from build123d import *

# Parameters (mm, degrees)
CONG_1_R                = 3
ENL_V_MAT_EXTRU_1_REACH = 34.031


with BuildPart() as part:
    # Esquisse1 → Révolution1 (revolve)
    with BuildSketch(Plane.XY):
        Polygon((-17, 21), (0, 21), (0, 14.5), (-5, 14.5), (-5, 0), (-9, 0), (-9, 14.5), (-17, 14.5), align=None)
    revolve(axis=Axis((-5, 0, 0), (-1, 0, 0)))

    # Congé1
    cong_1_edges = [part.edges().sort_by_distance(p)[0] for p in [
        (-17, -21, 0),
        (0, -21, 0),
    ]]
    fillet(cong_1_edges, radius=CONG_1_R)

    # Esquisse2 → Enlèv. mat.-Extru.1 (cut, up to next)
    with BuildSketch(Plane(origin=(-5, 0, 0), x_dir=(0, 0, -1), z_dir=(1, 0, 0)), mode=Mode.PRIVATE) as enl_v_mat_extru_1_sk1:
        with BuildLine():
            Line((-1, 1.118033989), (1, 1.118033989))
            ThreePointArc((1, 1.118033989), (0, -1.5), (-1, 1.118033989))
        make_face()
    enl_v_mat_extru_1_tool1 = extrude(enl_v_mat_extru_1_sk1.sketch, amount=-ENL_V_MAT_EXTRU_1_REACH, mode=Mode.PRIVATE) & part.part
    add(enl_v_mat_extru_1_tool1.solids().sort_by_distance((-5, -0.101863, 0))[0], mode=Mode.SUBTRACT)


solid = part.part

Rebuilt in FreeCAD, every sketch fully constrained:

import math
import FreeCAD as App
import Part
import Sketcher


def edges_at(feature, points):
    """Names of the edges that pass closest to the given points."""
    edges = feature.Shape.Edges
    near = lambda p: min(range(len(edges)), key=lambda i: edges[i].distToShape(Part.Vertex(*p))[0])
    return sorted({f"Edge{near(p) + 1}" for p in points})

doc = App.newDocument("Part")
body = doc.addObject("PartDesign::Body", "Body")

sketch1 = body.newObject("Sketcher::SketchObject", "Sketch")
sketch1.AttachmentSupport = (doc.getObject("XY_Plane"), [""])
sketch1.MapMode = "FlatFace"
sketch1.addGeometry([
    Part.LineSegment(App.Vector(0, 21, 0), App.Vector(-17, 21, 0)),
    Part.LineSegment(App.Vector(-17, 21, 0), App.Vector(-17, 14.5, 0)),
    Part.LineSegment(App.Vector(-17, 14.5, 0), App.Vector(-9, 14.5, 0)),
    Part.LineSegment(App.Vector(-9, 14.5, 0), App.Vector(-9, 0, 0)),
    Part.LineSegment(App.Vector(-9, 0, 0), App.Vector(-5, 0, 0)),
    Part.LineSegment(App.Vector(-5, 0, 0), App.Vector(-5, 14.5, 0)),
    Part.LineSegment(App.Vector(-5, 14.5, 0), App.Vector(0, 14.5, 0)),
    Part.LineSegment(App.Vector(0, 14.5, 0), App.Vector(0, 21, 0)),
], False)
sketch1.addConstraint([
    Sketcher.Constraint("Coincident", 0, 2, 1, 1),
    Sketcher.Constraint("Coincident", 1, 2, 2, 1),
    Sketcher.Constraint("Coincident", 2, 2, 3, 1),
    Sketcher.Constraint("Coincident", 3, 2, 4, 1),
    Sketcher.Constraint("Coincident", 4, 2, 5, 1),
    Sketcher.Constraint("Coincident", 5, 2, 6, 1),
    Sketcher.Constraint("Coincident", 6, 2, 7, 1),
    Sketcher.Constraint("Coincident", 7, 2, 0, 1),
    Sketcher.Constraint("Horizontal", 0),
    Sketcher.Constraint("Vertical", 1),
    Sketcher.Constraint("Horizontal", 2),
    Sketcher.Constraint("Vertical", 3),
    Sketcher.Constraint("Horizontal", 4),
    Sketcher.Constraint("Vertical", 5),
    Sketcher.Constraint("Horizontal", 6),
    Sketcher.Constraint("Vertical", 7),
    Sketcher.Constraint("PointOnObject", 3, 2, -1),
    Sketcher.Constraint("PointOnObject", 6, 2, -2),
    Sketcher.Constraint("Horizontal", 2, 2, 5, 2),
    Sketcher.Constraint("DistanceX", 0, 2, 0, 1, 17.0),
    Sketcher.Constraint("DistanceX", 2, 1, 2, 2, 8.0),
    Sketcher.Constraint("DistanceX", 4, 1, 4, 2, 4.0),
    Sketcher.Constraint("DistanceY", 1, 2, 1, 1, 6.5),
    Sketcher.Constraint("DistanceY", 3, 2, 3, 1, 14.5),
])
revolution = body.newObject("PartDesign::Revolution", "Revolution")
revolution.Profile = sketch1
revolution.ReferenceAxis = (sketch1, ["H_Axis"])
revolution.Angle = 360
doc.recompute()

fillet = body.newObject("PartDesign::Fillet", "Fillet")
fillet.Base = (revolution, edges_at(revolution, [(-17, -21, 0), (0, -21, 0)]))
fillet.Radius = 3

sketch2 = body.newObject("Sketcher::SketchObject", "Sketch001")
sketch2.AttachmentSupport = (doc.getObject("YZ_Plane"), [""])
sketch2.MapMode = "FlatFace"
sketch2.AttachmentOffset = App.Placement(App.Vector(0, 0, -5), App.Rotation())
sketch2.addGeometry([
    Part.LineSegment(App.Vector(1.118034, -1, 0), App.Vector(1.118034, 1, 0)),
    Part.ArcOfCircle(Part.Circle(App.Vector(0, 0, 0), App.Vector(0, 0, 1), 1.5), math.radians(41.810315), math.radians(318.189685)),
], False)
sketch2.addConstraint([
    Sketcher.Constraint("Coincident", 0, 1, 1, 2),
    Sketcher.Constraint("Coincident", 1, 1, 0, 2),
    Sketcher.Constraint("Vertical", 0),
    Sketcher.Constraint("Coincident", 1, 3, -1, 1),
    Sketcher.Constraint("Radius", 1, 1.5),
    Sketcher.Constraint("DistanceY", 0, 1, 0, 2, 2.0),
])
pocket1 = body.newObject("PartDesign::Pocket", "Pocket")
pocket1.Profile = sketch2
pocket1.Type = "UpToFirst"

doc.recompute()
